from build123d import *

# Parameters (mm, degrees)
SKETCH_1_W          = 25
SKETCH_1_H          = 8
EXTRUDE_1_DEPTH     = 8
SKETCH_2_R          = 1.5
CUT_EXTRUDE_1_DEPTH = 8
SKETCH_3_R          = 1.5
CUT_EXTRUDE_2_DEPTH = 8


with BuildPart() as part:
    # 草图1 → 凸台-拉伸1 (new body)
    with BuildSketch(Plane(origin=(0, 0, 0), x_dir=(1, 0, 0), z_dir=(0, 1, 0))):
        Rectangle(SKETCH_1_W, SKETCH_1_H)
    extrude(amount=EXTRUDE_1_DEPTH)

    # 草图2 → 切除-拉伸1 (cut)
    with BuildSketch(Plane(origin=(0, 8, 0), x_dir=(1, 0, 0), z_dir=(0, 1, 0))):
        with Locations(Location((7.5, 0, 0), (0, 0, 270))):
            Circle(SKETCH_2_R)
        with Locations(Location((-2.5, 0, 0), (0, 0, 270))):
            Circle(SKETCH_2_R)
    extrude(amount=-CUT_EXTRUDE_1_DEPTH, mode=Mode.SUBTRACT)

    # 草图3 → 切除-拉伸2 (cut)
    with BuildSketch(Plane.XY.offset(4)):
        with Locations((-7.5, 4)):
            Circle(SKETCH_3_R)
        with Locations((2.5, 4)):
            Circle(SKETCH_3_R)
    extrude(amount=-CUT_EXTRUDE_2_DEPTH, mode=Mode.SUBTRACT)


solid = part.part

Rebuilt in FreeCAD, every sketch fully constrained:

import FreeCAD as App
import Part
import Sketcher
from FreeCAD import Vector

doc = App.newDocument("Part")
body = doc.addObject("PartDesign::Body", "Body")

sketch1 = body.newObject("Sketcher::SketchObject", "Sketch")
sketch1.AttachmentSupport = (doc.getObject("XZ_Plane"), [""])
sketch1.MapMode = "FlatFace"
sketch1.addGeometry([
    Part.LineSegment(Vector(-12.5, -4, 0), Vector(-12.5, 4, 0)),
    Part.LineSegment(Vector(-12.5, 4, 0), Vector(12.5, 4, 0)),
    Part.LineSegment(Vector(12.5, 4, 0), Vector(12.5, -4, 0)),
    Part.LineSegment(Vector(12.5, -4, 0), Vector(-12.5, -4, 0)),
], False)
sketch1.addConstraint([
    Sketcher.Constraint("Coincident", 0, 2, 1, 1),
    Sketcher.Constraint("Coincident", 1, 2, 2, 1),
    Sketcher.Constraint("Coincident", 2, 2, 3, 1),
    Sketcher.Constraint("Coincident", 3, 2, 0, 1),
    Sketcher.Constraint("Vertical", 0),
    Sketcher.Constraint("Horizontal", 1),
    Sketcher.Constraint("Vertical", 2),
    Sketcher.Constraint("Horizontal", 3),
    Sketcher.Constraint("Symmetric", 0, 2, 2, 2, -1, 1),
    Sketcher.Constraint("DistanceX", 1, 1, 1, 2, 25.0),
    Sketcher.Constraint("DistanceY", 0, 1, 0, 2, 8.0),
])
pad1 = body.newObject("PartDesign::Pad", "Pad")
pad1.Profile = sketch1
pad1.Length = 8
pad1.Reversed = True

sketch2 = body.newObject("Sketcher::SketchObject", "Sketch001")
sketch2.AttachmentSupport = (doc.getObject("XZ_Plane"), [""])
sketch2.MapMode = "FlatFace"
sketch2.AttachmentOffset = App.Placement(Vector(0, 0, -8), App.Rotation())
sketch2.addGeometry([
    Part.Circle(Vector(7.5, 0, 0), Vector(0, 0, 1), 1.5),
    Part.Circle(Vector(-2.5, 0, 0), Vector(0, 0, 1), 1.5),
], False)
sketch2.addConstraint([
    Sketcher.Constraint("Equal", 0, 1),
    Sketcher.Constraint("PointOnObject", 0, 3, -1),
    Sketcher.Constraint("PointOnObject", 1, 3, -1),
    Sketcher.Constraint("Diameter", 0, 3.0),
    Sketcher.Constraint("DistanceX", 1, 3, 0, 3, 10.0),
    Sketcher.Constraint("DistanceX", -1, 1, 0, 3, 7.5),
])
pocket1 = body.newObject("PartDesign::Pocket", "Pocket")
pocket1.Profile = sketch2
pocket1.Length = 8
pocket1.Reversed = True

sketch3 = body.newObject("Sketcher::SketchObject", "Sketch002")
sketch3.AttachmentSupport = (doc.getObject("XY_Plane"), [""])
sketch3.MapMode = "FlatFace"
sketch3.AttachmentOffset = App.Placement(Vector(0, 0, 4), App.Rotation())
sketch3.addGeometry([
    Part.Circle(Vector(-7.5, 4, 0), Vector(0, 0, 1), 1.5),
    Part.Circle(Vector(2.5, 4, 0), Vector(0, 0, 1), 1.5),
], False)
sketch3.addConstraint([
    Sketcher.Constraint("Equal", 0, 1),
    Sketcher.Constraint("Horizontal", 0, 3, 1, 3),
    Sketcher.Constraint("Diameter", 0, 3.0),
    Sketcher.Constraint("DistanceY", -1, 1, 0, 3, 4.0),
    Sketcher.Constraint("DistanceX", 0, 3, 1, 3, 10.0),
    Sketcher.Constraint("DistanceX", 0, 3, -1, 1, 7.5),
])
pocket2 = body.newObject("PartDesign::Pocket", "Pocket001")
pocket2.Profile = sketch3
pocket2.Length = 8

doc.recompute()
